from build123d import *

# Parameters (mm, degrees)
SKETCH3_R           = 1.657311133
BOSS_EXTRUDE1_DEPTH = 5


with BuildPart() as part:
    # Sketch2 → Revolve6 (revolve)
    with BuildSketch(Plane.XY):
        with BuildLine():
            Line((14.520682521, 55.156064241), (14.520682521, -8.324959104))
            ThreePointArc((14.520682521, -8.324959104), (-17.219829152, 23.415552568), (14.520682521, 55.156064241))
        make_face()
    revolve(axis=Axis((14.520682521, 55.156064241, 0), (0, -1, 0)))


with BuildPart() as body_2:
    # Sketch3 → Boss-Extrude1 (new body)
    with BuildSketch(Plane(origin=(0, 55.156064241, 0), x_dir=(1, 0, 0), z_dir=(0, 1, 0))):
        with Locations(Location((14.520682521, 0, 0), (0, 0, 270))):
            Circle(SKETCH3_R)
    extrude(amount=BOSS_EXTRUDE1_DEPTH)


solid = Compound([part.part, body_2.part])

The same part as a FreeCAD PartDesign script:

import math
import FreeCAD as App
import Part
import Sketcher

V = App.Vector

doc = App.newDocument("Part")
params = doc.addObject("Spreadsheet::Sheet", "Params")
for row, (alias, value) in enumerate([
    ("revolution_angle", "360 deg"),
    ("pad1_length", "5 mm"),
], start=1):
    params.set(f"A{row}", alias)
    params.set(f"B{row}", "=" + value)
    params.setAlias(f"B{row}", alias)

body = doc.addObject("PartDesign::Body", "Body")

sketch1 = body.newObject("Sketcher::SketchObject", "Sketch")
sketch1.AttachmentSupport = (doc.getObject("XY_Plane"), [""])
sketch1.MapMode = "FlatFace"
sketch1.addGeometry(Part.LineSegment(V(15, -8, 0), V(15, 55, 0)), False)
sketch1.addGeometry(Part.ArcOfCircle(Part.Circle(V(15, 23, 0), V(0, 0, 1), 32), math.radians(90), math.radians(270)), False)
sketch1.addGeometry(Part.LineSegment(V(15, 55, 0), V(15, -8, 0)), True)
sketch1.addConstraint(Sketcher.Constraint("Coincident", 0, 1, 1, 2))
sketch1.addConstraint(Sketcher.Constraint("Coincident", 1, 1, 0, 2))
sketch1.addConstraint(Sketcher.Constraint("Vertical", 0))
sketch1.addConstraint(Sketcher.Constraint("Vertical", 2))
sketch1.addConstraint(Sketcher.Constraint("Coincident", 2, 1, 1, 1))
sketch1.addConstraint(Sketcher.Constraint("Vertical", 1, 3, 0, 1))
sketch1.addConstraint(Sketcher.Constraint("Equal", 0, 2))
sketch1.addConstraint(Sketcher.Constraint("Radius", 1, 31.740512))
sketch1.addConstraint(Sketcher.Constraint("DistanceY", 0, 1, -1, 1, 8.324959))
sketch1.addConstraint(Sketcher.Constraint("DistanceX", -1, 1, 1, 3, 14.520683))
revolution = body.newObject("PartDesign::Revolution", "Revolution")
revolution.Profile = sketch1
revolution.ReferenceAxis = (sketch1, ["Axis0"])
revolution.setExpression("Angle", "Params.revolution_angle")
body2 = doc.addObject("PartDesign::Body", "Body001")

sketch2 = body2.newObject("Sketcher::SketchObject", "Sketch001")
sketch2.AttachmentSupport = (doc.getObject("XZ_Plane001"), [""])
sketch2.MapMode = "FlatFace"
sketch2.AttachmentOffset = App.Placement(V(0, 0, -55.156064), App.Rotation())
sketch2.addGeometry(Part.Circle(V(14.5, 0, 0), V(0, 0, 1), 1.7), False)
sketch2.addConstraint(Sketcher.Constraint("PointOnObject", 0, 3, -1))
sketch2.addConstraint(Sketcher.Constraint("Diameter", 0, 3.314622))
sketch2.addConstraint(Sketcher.Constraint("DistanceX", -1, 1, 0, 3, 14.520683))
pad1 = body2.newObject("PartDesign::Pad", "Pad")
pad1.Profile = sketch2
pad1.setExpression("Length", "Params.pad1_length")
pad1.Reversed = True

doc.recompute()
